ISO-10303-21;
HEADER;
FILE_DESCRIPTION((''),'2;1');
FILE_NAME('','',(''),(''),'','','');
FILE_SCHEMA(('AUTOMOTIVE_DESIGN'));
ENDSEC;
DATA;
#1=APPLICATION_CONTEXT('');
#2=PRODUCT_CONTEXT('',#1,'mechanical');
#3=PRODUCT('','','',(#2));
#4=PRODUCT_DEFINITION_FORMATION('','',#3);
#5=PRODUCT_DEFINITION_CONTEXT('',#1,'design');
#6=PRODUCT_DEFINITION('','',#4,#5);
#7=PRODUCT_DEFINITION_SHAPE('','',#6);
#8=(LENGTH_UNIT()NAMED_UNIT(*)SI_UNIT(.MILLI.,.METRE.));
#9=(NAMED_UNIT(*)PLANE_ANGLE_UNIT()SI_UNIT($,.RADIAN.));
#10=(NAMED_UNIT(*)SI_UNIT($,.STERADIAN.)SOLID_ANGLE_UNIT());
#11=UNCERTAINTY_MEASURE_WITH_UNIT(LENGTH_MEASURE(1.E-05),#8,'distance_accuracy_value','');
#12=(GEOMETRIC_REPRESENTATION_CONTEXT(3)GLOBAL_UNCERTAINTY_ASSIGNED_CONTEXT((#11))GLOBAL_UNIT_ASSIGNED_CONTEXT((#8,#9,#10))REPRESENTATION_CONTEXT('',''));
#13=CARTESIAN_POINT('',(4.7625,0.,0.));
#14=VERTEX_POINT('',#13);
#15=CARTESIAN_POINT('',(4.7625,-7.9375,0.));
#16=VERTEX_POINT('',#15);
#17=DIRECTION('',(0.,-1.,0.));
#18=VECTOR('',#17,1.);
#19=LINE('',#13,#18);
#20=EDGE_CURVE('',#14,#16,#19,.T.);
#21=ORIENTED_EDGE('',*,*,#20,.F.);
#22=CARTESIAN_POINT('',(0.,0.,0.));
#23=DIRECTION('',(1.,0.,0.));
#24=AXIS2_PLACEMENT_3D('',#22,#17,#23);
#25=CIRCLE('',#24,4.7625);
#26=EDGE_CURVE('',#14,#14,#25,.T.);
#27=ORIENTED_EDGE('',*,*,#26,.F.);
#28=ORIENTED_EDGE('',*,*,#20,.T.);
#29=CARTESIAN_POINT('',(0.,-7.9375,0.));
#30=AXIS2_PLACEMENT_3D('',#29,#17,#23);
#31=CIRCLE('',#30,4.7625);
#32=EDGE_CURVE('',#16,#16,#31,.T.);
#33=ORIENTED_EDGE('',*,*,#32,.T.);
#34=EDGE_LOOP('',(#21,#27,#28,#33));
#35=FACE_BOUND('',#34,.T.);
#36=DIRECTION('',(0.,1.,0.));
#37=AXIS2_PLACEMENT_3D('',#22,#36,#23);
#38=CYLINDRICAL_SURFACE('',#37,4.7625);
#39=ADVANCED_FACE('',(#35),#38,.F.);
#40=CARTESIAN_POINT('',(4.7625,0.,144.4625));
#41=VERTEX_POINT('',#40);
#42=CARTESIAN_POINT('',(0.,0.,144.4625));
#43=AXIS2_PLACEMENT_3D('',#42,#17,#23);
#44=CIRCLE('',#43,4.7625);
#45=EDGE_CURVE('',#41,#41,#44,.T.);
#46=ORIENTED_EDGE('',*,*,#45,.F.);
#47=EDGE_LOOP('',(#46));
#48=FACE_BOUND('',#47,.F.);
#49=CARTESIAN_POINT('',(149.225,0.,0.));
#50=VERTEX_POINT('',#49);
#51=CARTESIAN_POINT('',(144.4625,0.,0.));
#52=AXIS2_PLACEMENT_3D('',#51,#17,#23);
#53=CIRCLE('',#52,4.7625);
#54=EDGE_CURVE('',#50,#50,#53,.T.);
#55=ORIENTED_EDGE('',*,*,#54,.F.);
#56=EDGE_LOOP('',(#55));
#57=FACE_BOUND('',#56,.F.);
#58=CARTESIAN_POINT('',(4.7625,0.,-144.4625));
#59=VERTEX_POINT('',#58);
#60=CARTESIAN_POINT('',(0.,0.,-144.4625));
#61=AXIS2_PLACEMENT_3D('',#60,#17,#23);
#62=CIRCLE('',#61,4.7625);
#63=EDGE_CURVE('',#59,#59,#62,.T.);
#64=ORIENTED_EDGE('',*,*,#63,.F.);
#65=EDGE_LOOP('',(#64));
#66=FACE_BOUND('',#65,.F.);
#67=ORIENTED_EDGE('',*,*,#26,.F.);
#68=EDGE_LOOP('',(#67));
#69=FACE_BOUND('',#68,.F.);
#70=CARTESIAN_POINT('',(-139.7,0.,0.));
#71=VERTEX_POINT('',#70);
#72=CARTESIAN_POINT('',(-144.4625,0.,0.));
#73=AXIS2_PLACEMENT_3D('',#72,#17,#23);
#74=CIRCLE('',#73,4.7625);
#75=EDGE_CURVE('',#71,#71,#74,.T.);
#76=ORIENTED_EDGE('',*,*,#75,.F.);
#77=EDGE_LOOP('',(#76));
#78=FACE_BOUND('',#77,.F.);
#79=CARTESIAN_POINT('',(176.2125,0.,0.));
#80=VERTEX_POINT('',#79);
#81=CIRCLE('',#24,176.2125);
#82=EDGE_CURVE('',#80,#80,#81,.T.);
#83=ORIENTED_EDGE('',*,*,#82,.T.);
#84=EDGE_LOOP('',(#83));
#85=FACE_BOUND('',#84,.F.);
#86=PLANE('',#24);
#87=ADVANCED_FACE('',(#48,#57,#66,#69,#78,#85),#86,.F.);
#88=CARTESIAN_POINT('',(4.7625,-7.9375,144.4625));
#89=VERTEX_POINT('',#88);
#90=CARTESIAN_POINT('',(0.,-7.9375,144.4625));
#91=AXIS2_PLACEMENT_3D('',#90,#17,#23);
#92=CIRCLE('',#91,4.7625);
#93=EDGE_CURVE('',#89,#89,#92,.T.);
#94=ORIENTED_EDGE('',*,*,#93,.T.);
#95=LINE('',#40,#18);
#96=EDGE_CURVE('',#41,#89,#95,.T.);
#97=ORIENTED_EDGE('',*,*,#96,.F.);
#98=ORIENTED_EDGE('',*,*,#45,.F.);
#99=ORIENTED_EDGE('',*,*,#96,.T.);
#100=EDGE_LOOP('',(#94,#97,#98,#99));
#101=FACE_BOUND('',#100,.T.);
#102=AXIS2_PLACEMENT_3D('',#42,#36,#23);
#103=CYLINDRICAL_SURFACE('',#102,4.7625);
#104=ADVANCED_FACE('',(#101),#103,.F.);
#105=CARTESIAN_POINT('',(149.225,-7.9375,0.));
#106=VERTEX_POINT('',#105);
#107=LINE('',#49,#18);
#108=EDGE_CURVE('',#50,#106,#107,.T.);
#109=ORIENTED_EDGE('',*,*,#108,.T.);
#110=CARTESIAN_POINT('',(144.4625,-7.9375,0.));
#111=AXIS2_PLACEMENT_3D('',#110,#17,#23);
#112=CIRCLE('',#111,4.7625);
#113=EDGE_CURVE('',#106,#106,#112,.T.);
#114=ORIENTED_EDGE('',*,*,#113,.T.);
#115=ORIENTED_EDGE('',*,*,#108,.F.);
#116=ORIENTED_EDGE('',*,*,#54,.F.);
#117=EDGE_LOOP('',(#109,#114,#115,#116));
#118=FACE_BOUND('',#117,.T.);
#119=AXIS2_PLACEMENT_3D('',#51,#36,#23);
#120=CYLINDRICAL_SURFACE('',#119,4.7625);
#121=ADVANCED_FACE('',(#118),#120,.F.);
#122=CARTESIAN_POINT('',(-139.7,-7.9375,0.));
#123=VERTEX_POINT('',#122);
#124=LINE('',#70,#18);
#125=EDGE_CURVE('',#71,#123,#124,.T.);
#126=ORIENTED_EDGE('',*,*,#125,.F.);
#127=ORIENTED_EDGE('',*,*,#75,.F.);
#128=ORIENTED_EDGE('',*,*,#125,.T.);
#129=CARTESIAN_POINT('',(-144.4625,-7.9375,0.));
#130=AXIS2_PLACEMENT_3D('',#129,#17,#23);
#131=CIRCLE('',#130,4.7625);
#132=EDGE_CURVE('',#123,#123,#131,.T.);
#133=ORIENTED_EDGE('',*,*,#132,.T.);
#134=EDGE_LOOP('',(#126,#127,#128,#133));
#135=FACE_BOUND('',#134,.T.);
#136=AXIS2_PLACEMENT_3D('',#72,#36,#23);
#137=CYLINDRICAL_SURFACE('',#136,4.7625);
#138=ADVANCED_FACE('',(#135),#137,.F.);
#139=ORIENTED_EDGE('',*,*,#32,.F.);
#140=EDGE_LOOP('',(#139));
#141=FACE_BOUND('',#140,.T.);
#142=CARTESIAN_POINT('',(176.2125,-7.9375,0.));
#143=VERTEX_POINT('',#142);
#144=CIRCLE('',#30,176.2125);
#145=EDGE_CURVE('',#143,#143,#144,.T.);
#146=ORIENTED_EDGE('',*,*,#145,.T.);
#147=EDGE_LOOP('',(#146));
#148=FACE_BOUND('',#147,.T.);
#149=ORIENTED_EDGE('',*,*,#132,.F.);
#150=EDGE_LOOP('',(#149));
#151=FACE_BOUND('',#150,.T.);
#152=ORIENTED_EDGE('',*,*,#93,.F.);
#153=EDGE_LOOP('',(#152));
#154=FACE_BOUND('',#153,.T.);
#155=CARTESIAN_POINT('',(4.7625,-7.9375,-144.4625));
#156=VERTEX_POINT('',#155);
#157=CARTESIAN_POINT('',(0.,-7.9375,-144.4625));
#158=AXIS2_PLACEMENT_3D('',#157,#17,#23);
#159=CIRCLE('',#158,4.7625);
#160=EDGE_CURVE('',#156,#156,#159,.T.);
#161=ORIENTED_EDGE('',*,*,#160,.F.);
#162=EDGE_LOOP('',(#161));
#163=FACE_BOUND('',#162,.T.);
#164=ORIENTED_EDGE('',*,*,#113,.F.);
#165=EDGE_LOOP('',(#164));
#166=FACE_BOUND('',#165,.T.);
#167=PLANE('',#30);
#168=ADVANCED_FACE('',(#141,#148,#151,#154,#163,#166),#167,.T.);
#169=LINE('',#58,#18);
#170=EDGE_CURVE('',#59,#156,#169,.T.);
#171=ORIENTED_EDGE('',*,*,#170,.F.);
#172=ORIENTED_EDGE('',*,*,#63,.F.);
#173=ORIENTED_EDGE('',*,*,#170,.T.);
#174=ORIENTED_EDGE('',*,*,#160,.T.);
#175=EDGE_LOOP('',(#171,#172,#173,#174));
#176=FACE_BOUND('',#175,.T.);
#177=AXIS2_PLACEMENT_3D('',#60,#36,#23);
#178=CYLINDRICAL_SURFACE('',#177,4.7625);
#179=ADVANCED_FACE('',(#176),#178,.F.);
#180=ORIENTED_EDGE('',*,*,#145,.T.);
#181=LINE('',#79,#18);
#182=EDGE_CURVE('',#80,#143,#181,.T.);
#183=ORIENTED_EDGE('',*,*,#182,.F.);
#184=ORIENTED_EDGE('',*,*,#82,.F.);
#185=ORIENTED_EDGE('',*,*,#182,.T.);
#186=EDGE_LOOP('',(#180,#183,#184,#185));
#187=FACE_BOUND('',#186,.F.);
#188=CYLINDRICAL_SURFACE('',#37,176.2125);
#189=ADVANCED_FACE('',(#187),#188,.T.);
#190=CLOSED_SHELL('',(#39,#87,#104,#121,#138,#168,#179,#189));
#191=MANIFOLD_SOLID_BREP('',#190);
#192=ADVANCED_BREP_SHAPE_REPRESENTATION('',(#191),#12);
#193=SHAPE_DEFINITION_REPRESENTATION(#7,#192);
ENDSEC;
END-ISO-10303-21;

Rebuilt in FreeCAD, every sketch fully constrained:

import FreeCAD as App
import Part
import Sketcher
from FreeCAD import Vector
Q = App.Units.Quantity

doc = App.newDocument("Part")
body = doc.addObject("PartDesign::Body", "Body")

sketch1 = doc.addObject("Sketcher::SketchObject", "Sketch")
body.addObject(sketch1)
sketch1.AttachmentSupport = (doc.XZ_Plane, [""])
sketch1.MapMode = "FlatFace"
sketch1.addGeometry([
    Part.Circle(Vector(0, 0, 0), Vector(0, 0, 1), 176.2125),
    Part.Circle(Vector(0, -144.4625, 0), Vector(0, 0, 1), 4.7625),
    Part.Circle(Vector(-144.4625, 0, 0), Vector(0, 0, 1), 4.7625),
    Part.Circle(Vector(0, 0, 0), Vector(0, 0, 1), 4.7625),
    Part.Circle(Vector(144.4625, 0, 0), Vector(0, 0, 1), 4.7625),
    Part.Circle(Vector(0, 144.4625, 0), Vector(0, 0, 1), 4.7625),
], False)
sketch1.addConstraint([
    Sketcher.Constraint("Coincident", 0, 3, -1, 1),
    Sketcher.Constraint("Coincident", 3, 3, -1, 1),
    Sketcher.Constraint("Equal", 1, 2),
    Sketcher.Constraint("Equal", 2, 3),
    Sketcher.Constraint("Equal", 3, 4),
    Sketcher.Constraint("Equal", 4, 5),
    Sketcher.Constraint("Symmetric", 2, 3, 4, 3, -1, 1),
    Sketcher.Constraint("Symmetric", 1, 3, 5, 3, -1, 1),
    Sketcher.Constraint("PointOnObject", 1, 3, -2),
    Sketcher.Constraint("PointOnObject", 2, 3, -1),
    Sketcher.Constraint("Diameter", 0, Q("13.875 in")),
    Sketcher.Constraint("Diameter", 1, Q("0.375 in")),
    Sketcher.Constraint("DistanceY", 1, 3, -1, 1, Q("5.6875 in")),
    Sketcher.Constraint("DistanceX", 2, 3, -1, 1, Q("5.6875 in")),
])
pad1 = doc.addObject("PartDesign::Pad", "Pad")
body.addObject(pad1)
pad1.Profile = sketch1
pad1.Length = Q("0.3125 in")

doc.recompute()
